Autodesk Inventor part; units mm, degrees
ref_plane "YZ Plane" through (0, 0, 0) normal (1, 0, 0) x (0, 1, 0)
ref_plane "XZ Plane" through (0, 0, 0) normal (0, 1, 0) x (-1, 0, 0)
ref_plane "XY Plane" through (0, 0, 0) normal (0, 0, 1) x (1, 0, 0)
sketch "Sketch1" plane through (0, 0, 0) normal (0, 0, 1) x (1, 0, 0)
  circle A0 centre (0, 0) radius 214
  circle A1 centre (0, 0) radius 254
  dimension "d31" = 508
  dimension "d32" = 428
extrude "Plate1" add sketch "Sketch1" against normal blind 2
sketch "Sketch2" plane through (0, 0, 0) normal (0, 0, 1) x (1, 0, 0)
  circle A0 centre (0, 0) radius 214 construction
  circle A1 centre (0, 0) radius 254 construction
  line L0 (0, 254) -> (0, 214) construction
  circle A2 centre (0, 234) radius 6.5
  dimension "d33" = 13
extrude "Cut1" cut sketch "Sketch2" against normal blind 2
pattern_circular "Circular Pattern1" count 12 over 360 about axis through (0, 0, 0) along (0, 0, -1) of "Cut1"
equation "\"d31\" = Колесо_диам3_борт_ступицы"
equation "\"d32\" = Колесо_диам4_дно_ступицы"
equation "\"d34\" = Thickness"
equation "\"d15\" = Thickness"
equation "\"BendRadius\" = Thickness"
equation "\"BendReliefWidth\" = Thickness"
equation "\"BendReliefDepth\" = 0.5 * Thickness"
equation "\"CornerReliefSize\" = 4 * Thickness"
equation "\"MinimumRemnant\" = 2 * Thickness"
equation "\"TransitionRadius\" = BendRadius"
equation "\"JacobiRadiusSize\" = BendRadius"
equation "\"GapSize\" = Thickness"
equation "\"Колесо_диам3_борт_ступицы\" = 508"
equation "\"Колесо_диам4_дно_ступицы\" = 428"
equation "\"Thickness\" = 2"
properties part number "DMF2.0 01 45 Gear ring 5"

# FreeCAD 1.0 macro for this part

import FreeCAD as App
import Part
import Sketcher
from FreeCAD import Vector
Q = App.Units.Quantity

doc = App.newDocument("Part")
body = doc.addObject("PartDesign::Body", "Body")

# Sketch on XY plane
sketch1 = body.newObject("Sketcher::SketchObject", "Sketch")
sketch1.AttachmentSupport = (doc.getObject("XY_Plane"), [""])
sketch1.MapMode = "FlatFace"
sketch1.addGeometry([
    Part.Circle(Vector(0, 0, 0), Vector(0, 0, 1), 254),
    Part.Circle(Vector(0, 0, 0), Vector(0, 0, 1), 214),
], False)
sketch1.addConstraint([
    Sketcher.Constraint("Coincident", 0, 3, -1, 1),
    Sketcher.Constraint("Coincident", 1, 3, -1, 1),
    Sketcher.Constraint("Diameter", 0, Q("508 mm")),
    Sketcher.Constraint("Diameter", 1, Q("428 mm")),
])
pad1 = body.newObject("PartDesign::Pad", "Pad")
pad1.Profile = sketch1
pad1.Length = 2
pad1.Reversed = True

# Sketch on XY plane
sketch2 = body.newObject("Sketcher::SketchObject", "Sketch001")
sketch2.AttachmentSupport = (doc.getObject("XY_Plane"), [""])
sketch2.MapMode = "FlatFace"
sketch2.addGeometry(Part.Circle(Vector(0, 234, 0), Vector(0, 0, 1), 6), False)
sketch2.addConstraint([
    Sketcher.Constraint("PointOnObject", 0, 3, -2),
    Sketcher.Constraint("Diameter", 0, Q("13 mm")),
    Sketcher.Constraint("DistanceY", -1, 1, 0, 3, Q("234 mm")),
])
pocket1 = body.newObject("PartDesign::Pocket", "Pocket")
pocket1.Profile = sketch2
pocket1.Length = 2
doc.recompute()

polarpattern = body.newObject("PartDesign::PolarPattern", "PolarPattern")
polarpattern.Originals = [pocket1]
polarpattern.Axis = (doc.getObject("Z_Axis"), [""])
polarpattern.Angle = 360
polarpattern.Occurrences = 12
body.Tip = polarpattern

doc.recompute()
